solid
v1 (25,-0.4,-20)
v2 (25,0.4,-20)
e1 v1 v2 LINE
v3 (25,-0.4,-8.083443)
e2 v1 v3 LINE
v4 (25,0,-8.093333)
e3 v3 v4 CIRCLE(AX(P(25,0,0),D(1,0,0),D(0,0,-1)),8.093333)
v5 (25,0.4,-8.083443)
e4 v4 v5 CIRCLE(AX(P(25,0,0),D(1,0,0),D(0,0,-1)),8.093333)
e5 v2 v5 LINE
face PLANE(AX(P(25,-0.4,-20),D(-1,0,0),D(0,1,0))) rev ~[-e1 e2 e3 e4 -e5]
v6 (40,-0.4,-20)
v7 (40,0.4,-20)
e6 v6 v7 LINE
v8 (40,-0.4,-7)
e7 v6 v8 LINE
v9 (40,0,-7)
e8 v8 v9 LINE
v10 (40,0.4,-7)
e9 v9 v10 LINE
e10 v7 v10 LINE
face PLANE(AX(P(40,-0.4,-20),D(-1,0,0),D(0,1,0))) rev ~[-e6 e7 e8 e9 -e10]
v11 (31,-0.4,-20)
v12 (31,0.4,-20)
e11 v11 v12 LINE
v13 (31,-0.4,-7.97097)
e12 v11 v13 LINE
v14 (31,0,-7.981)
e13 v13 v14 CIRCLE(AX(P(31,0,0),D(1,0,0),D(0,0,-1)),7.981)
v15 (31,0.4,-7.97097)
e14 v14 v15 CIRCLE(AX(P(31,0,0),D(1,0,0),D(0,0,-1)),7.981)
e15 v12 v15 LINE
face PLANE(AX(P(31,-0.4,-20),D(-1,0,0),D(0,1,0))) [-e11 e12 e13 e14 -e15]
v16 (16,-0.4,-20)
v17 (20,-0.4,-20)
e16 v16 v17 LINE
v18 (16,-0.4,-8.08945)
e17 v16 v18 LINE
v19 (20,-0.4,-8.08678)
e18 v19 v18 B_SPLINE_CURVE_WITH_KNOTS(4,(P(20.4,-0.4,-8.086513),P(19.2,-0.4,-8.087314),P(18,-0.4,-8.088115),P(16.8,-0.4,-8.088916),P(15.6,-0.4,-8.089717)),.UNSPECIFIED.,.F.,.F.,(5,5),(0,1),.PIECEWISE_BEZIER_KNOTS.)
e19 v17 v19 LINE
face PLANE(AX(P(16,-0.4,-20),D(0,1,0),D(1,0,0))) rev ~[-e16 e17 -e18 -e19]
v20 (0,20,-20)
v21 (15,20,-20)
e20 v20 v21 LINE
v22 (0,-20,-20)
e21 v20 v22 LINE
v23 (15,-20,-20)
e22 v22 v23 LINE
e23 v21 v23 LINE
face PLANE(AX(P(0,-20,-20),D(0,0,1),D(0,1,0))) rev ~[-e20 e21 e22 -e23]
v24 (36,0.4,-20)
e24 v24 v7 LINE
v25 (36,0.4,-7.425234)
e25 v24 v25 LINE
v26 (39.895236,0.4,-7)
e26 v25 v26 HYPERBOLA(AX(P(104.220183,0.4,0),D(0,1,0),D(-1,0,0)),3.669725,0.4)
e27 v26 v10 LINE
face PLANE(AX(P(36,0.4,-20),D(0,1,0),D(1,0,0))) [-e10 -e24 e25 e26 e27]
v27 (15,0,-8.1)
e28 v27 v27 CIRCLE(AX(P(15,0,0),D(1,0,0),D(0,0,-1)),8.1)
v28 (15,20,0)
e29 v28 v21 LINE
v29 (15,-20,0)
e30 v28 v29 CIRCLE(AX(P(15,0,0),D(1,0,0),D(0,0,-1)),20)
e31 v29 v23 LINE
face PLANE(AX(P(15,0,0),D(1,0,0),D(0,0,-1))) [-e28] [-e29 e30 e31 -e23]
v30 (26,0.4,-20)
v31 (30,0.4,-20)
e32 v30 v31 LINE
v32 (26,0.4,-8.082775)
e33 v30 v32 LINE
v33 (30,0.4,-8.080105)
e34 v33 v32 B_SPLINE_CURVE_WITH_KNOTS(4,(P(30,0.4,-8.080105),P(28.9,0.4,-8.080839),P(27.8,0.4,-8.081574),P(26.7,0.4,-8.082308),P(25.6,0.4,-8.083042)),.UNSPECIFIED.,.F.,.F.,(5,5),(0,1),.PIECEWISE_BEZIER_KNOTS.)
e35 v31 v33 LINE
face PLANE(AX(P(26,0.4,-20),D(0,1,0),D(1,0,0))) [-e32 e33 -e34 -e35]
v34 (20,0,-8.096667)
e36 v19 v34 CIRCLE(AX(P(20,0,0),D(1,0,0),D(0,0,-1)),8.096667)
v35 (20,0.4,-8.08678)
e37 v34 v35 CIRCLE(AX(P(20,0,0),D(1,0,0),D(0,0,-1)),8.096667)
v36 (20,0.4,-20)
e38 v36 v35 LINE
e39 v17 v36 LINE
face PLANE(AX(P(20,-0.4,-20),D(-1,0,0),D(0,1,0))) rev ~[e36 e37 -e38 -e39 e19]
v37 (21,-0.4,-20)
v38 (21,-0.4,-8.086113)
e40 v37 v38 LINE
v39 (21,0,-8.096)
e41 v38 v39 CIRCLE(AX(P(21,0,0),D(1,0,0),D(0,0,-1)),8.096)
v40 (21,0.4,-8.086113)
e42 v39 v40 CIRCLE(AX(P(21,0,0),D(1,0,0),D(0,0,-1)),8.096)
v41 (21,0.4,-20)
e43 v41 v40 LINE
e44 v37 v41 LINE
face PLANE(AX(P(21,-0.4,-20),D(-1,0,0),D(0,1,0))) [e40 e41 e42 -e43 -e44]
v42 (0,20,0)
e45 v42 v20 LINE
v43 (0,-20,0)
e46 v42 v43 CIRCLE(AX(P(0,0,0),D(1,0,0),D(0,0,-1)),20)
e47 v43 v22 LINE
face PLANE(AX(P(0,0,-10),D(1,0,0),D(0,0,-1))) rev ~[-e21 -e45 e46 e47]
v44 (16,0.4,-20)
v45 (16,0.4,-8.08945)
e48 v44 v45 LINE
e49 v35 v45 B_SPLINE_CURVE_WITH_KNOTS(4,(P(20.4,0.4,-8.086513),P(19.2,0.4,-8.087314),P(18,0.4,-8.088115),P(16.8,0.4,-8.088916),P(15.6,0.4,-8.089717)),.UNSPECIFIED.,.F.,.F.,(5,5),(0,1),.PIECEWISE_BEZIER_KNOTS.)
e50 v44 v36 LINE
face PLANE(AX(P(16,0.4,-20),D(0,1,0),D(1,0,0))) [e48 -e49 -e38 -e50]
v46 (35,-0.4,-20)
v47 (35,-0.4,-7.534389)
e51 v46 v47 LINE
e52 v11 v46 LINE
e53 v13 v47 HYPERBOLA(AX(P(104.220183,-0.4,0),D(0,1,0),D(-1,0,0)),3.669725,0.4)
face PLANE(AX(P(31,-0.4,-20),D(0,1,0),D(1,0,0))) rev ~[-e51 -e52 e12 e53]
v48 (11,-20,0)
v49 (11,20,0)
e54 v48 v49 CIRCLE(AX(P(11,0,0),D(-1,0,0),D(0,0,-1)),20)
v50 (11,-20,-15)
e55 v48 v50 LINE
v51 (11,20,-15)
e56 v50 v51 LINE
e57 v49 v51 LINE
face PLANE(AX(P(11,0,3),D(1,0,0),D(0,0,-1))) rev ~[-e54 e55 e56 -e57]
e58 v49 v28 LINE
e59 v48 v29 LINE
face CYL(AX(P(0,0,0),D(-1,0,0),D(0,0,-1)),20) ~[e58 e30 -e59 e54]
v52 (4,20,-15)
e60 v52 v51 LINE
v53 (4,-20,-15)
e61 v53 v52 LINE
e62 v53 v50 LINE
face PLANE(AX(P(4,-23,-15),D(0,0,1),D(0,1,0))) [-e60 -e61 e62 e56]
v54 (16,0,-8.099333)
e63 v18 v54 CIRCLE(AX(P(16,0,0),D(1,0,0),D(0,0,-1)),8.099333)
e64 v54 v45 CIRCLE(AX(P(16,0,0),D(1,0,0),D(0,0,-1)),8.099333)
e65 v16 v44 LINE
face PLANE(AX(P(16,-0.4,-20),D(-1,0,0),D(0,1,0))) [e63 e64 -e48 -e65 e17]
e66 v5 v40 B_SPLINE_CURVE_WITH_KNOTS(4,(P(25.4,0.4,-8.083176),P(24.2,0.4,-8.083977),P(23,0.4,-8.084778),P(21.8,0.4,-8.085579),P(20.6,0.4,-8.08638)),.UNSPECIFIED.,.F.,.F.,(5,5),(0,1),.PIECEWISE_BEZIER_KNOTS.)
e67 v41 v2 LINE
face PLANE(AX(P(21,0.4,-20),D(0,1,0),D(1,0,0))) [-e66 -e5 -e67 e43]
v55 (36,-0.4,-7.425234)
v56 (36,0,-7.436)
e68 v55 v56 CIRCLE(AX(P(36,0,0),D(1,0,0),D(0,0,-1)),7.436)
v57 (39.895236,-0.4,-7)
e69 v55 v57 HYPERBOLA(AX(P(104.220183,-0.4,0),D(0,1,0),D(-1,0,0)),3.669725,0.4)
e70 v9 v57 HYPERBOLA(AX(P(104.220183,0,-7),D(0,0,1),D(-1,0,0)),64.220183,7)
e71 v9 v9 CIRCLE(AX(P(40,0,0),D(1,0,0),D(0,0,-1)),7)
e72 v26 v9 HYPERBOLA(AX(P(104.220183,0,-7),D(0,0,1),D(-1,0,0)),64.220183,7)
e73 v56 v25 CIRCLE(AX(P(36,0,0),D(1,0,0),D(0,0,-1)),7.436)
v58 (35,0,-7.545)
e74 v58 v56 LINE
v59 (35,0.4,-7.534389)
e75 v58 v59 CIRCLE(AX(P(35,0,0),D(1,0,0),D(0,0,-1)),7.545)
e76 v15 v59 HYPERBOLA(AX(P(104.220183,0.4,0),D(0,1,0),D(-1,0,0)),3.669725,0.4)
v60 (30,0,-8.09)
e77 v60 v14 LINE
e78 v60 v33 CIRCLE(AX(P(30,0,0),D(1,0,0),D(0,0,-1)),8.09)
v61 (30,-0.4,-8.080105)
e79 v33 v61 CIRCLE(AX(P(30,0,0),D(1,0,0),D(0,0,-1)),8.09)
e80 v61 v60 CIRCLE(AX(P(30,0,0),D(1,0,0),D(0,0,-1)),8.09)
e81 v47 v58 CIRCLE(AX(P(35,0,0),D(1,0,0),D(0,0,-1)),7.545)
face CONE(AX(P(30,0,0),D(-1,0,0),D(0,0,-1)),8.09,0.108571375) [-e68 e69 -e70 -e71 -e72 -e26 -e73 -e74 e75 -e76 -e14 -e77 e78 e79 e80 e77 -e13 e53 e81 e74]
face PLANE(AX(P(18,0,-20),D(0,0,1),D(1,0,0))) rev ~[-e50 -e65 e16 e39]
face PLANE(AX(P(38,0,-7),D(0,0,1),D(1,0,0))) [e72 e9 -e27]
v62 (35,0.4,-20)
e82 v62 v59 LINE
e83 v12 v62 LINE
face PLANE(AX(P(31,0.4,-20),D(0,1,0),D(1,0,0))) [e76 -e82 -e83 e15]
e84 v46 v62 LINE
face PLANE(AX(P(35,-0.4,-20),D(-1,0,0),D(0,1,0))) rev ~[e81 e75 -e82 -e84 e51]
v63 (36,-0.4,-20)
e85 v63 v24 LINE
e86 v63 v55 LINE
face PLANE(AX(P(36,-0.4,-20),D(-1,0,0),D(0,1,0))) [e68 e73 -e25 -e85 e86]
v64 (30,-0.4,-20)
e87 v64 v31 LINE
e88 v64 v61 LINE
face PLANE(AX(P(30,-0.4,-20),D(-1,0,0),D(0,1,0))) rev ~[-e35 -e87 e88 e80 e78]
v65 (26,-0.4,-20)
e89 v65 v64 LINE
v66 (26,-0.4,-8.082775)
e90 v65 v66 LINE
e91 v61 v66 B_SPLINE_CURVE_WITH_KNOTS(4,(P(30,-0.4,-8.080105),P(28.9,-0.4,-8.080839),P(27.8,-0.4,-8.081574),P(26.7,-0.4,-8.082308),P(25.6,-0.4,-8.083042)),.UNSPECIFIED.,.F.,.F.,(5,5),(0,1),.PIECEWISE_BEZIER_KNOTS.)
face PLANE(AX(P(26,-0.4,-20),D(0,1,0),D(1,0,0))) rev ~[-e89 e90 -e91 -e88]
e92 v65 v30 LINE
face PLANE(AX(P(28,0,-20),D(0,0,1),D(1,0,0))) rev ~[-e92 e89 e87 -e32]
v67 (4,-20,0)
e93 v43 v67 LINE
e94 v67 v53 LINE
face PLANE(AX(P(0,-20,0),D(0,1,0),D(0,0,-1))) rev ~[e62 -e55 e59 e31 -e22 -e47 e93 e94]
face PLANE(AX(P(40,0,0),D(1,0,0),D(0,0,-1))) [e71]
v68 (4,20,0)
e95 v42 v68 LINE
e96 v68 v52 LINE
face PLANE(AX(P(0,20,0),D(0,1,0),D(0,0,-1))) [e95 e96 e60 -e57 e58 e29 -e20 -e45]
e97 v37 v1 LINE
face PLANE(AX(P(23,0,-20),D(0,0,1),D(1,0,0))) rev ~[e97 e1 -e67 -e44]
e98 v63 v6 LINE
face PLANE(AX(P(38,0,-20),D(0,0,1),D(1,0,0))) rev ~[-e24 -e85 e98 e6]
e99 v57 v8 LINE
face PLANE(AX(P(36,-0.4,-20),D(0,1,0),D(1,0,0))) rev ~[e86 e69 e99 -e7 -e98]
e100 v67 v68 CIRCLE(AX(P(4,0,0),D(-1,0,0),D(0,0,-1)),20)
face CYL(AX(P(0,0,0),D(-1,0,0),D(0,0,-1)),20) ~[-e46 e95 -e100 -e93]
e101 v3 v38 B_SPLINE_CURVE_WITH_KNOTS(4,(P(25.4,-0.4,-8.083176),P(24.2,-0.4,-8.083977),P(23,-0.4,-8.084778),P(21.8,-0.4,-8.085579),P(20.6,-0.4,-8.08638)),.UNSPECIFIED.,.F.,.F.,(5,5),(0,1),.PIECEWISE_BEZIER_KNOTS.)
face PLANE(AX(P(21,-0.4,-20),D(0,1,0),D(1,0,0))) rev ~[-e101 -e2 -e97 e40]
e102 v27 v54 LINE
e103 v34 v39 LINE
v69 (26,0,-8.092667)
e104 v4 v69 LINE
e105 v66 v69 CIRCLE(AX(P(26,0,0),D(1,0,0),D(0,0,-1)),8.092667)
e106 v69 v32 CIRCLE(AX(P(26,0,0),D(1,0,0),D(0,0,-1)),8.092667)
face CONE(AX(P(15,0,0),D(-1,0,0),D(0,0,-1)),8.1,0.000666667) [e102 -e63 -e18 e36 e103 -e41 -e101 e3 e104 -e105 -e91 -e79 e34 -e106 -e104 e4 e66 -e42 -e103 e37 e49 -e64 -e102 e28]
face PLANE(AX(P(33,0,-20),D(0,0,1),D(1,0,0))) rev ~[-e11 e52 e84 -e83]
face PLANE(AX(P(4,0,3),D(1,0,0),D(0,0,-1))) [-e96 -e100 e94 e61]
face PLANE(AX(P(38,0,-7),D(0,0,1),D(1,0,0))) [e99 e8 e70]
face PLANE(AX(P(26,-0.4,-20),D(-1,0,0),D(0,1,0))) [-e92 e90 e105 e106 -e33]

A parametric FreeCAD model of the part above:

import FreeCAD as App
import Part
import Sketcher

V = App.Vector
Q = App.Units.Quantity

doc = App.newDocument("Part")
body = doc.addObject("PartDesign::Body", "Body")

# Sketch on XY plane
sketch1 = doc.addObject("Sketcher::SketchObject", "Sketch")
body.addObject(sketch1)
sketch1.AttachmentSupport = (doc.XY_Plane, [""])
sketch1.MapMode = "FlatFace"
sketch1.AttachmentOffset = App.Placement(V(0, 0, -20), App.Rotation())
sketch1.addGeometry([
    Part.LineSegment(V(36, 0.4, 0), V(36, -0.4, 0)),
    Part.LineSegment(V(36, -0.4, 0), V(40, -0.4, 0)),
    Part.LineSegment(V(40, -0.4, 0), V(40, 0.4, 0)),
    Part.LineSegment(V(40, 0.4, 0), V(36, 0.4, 0)),
], False)
sketch1.addConstraint([
    Sketcher.Constraint("Coincident", 0, 2, 1, 1),
    Sketcher.Constraint("Coincident", 1, 2, 2, 1),
    Sketcher.Constraint("Coincident", 2, 2, 3, 1),
    Sketcher.Constraint("Coincident", 3, 2, 0, 1),
    Sketcher.Constraint("Vertical", 0),
    Sketcher.Constraint("Horizontal", 1),
    Sketcher.Constraint("Vertical", 2),
    Sketcher.Constraint("Horizontal", 3),
    Sketcher.Constraint("DistanceX", 1, 1, 1, 2, Q("4 mm")),
    Sketcher.Constraint("DistanceY", 0, 2, 0, 1, Q("0.8 mm")),
    Sketcher.Constraint("DistanceX", -1, 1, 0, 2, Q("36 mm")),
    Sketcher.Constraint("DistanceY", 0, 2, -1, 1, Q("0.4 mm")),
])
pad1 = doc.addObject("PartDesign::Pad", "Pad")
body.addObject(pad1)
pad1.Profile = sketch1
pad1.Length = 13
body2 = doc.addObject("PartDesign::Body", "Body001")

# Sketch on XY plane
sketch2 = doc.addObject("Sketcher::SketchObject", "Sketch001")
body2.addObject(sketch2)
sketch2.AttachmentSupport = (doc.getObject("XY_Plane001"), [""])
sketch2.MapMode = "FlatFace"
sketch2.AttachmentOffset = App.Placement(V(0, 0, -20), App.Rotation())
sketch2.addGeometry([
    Part.LineSegment(V(31, 0.4, 0), V(31, -0.4, 0)),
    Part.LineSegment(V(31, -0.4, 0), V(35, -0.4, 0)),
    Part.LineSegment(V(35, -0.4, 0), V(35, 0.4, 0)),
    Part.LineSegment(V(35, 0.4, 0), V(31, 0.4, 0)),
], False)
sketch2.addConstraint([
    Sketcher.Constraint("Coincident", 0, 2, 1, 1),
    Sketcher.Constraint("Coincident", 1, 2, 2, 1),
    Sketcher.Constraint("Coincident", 2, 2, 3, 1),
    Sketcher.Constraint("Coincident", 3, 2, 0, 1),
    Sketcher.Constraint("Vertical", 0),
    Sketcher.Constraint("Horizontal", 1),
    Sketcher.Constraint("Vertical", 2),
    Sketcher.Constraint("Horizontal", 3),
    Sketcher.Constraint("DistanceX", 1, 1, 1, 2, Q("4 mm")),
    Sketcher.Constraint("DistanceY", 0, 2, 0, 1, Q("0.8 mm")),
    Sketcher.Constraint("DistanceX", -1, 1, 0, 2, Q("31 mm")),
    Sketcher.Constraint("DistanceY", 0, 2, -1, 1, Q("0.4 mm")),
])
pad2 = doc.addObject("PartDesign::Pad", "Pad001")
body2.addObject(pad2)
pad2.Profile = sketch2
pad2.Length = 13
body3 = doc.addObject("PartDesign::Body", "Body002")

# Sketch on XY plane
sketch3 = doc.addObject("Sketcher::SketchObject", "Sketch002")
body3.addObject(sketch3)
sketch3.AttachmentSupport = (doc.getObject("XY_Plane002"), [""])
sketch3.MapMode = "FlatFace"
sketch3.AttachmentOffset = App.Placement(V(0, 0, -20), App.Rotation())
sketch3.addGeometry([
    Part.LineSegment(V(26, 0.4, 0), V(26, -0.4, 0)),
    Part.LineSegment(V(26, -0.4, 0), V(30, -0.4, 0)),
    Part.LineSegment(V(30, -0.4, 0), V(30, 0.4, 0)),
    Part.LineSegment(V(30, 0.4, 0), V(26, 0.4, 0)),
], False)
sketch3.addConstraint([
    Sketcher.Constraint("Coincident", 0, 2, 1, 1),
    Sketcher.Constraint("Coincident", 1, 2, 2, 1),
    Sketcher.Constraint("Coincident", 2, 2, 3, 1),
    Sketcher.Constraint("Coincident", 3, 2, 0, 1),
    Sketcher.Constraint("Vertical", 0),
    Sketcher.Constraint("Horizontal", 1),
    Sketcher.Constraint("Vertical", 2),
    Sketcher.Constraint("Horizontal", 3),
    Sketcher.Constraint("DistanceX", 1, 1, 1, 2, Q("4 mm")),
    Sketcher.Constraint("DistanceY", 0, 2, 0, 1, Q("0.8 mm")),
    Sketcher.Constraint("DistanceX", -1, 1, 0, 2, Q("26 mm")),
    Sketcher.Constraint("DistanceY", 0, 2, -1, 1, Q("0.4 mm")),
])
pad3 = doc.addObject("PartDesign::Pad", "Pad002")
body3.addObject(pad3)
pad3.Profile = sketch3
pad3.Length = 13
body4 = doc.addObject("PartDesign::Body", "Body003")

# Sketch on XY plane
sketch4 = doc.addObject("Sketcher::SketchObject", "Sketch003")
body4.addObject(sketch4)
sketch4.AttachmentSupport = (doc.getObject("XY_Plane003"), [""])
sketch4.MapMode = "FlatFace"
sketch4.AttachmentOffset = App.Placement(V(0, 0, -20), App.Rotation())
sketch4.addGeometry([
    Part.LineSegment(V(21, 0.4, 0), V(21, -0.4, 0)),
    Part.LineSegment(V(21, -0.4, 0), V(25, -0.4, 0)),
    Part.LineSegment(V(25, -0.4, 0), V(25, 0.4, 0)),
    Part.LineSegment(V(25, 0.4, 0), V(21, 0.4, 0)),
], False)
sketch4.addConstraint([
    Sketcher.Constraint("Coincident", 0, 2, 1, 1),
    Sketcher.Constraint("Coincident", 1, 2, 2, 1),
    Sketcher.Constraint("Coincident", 2, 2, 3, 1),
    Sketcher.Constraint("Coincident", 3, 2, 0, 1),
    Sketcher.Constraint("Vertical", 0),
    Sketcher.Constraint("Horizontal", 1),
    Sketcher.Constraint("Vertical", 2),
    Sketcher.Constraint("Horizontal", 3),
    Sketcher.Constraint("DistanceX", 1, 1, 1, 2, Q("4 mm")),
    Sketcher.Constraint("DistanceY", 0, 2, 0, 1, Q("0.8 mm")),
    Sketcher.Constraint("DistanceX", -1, 1, 0, 2, Q("21 mm")),
    Sketcher.Constraint("DistanceY", 0, 2, -1, 1, Q("0.4 mm")),
])
pad4 = doc.addObject("PartDesign::Pad", "Pad003")
body4.addObject(pad4)
pad4.Profile = sketch4
pad4.Length = 13
body5 = doc.addObject("PartDesign::Body", "Body004")
body5.AllowCompound = True

# Sketch on XY plane
sketch5 = doc.addObject("Sketcher::SketchObject", "Sketch004")
body5.addObject(sketch5)
sketch5.AttachmentSupport = (doc.getObject("XY_Plane004"), [""])
sketch5.MapMode = "FlatFace"
sketch5.AttachmentOffset = App.Placement(V(0, 0, -20), App.Rotation())
sketch5.addGeometry([
    Part.LineSegment(V(16, 0.4, 0), V(16, -0.4, 0)),
    Part.LineSegment(V(16, -0.4, 0), V(20, -0.4, 0)),
    Part.LineSegment(V(20, -0.4, 0), V(20, 0.4, 0)),
    Part.LineSegment(V(20, 0.4, 0), V(16, 0.4, 0)),
], False)
sketch5.addConstraint([
    Sketcher.Constraint("Coincident", 0, 2, 1, 1),
    Sketcher.Constraint("Coincident", 1, 2, 2, 1),
    Sketcher.Constraint("Coincident", 2, 2, 3, 1),
    Sketcher.Constraint("Coincident", 3, 2, 0, 1),
    Sketcher.Constraint("Vertical", 0),
    Sketcher.Constraint("Horizontal", 1),
    Sketcher.Constraint("Vertical", 2),
    Sketcher.Constraint("Horizontal", 3),
    Sketcher.Constraint("DistanceX", 1, 1, 1, 2, Q("4 mm")),
    Sketcher.Constraint("DistanceY", 0, 2, 0, 1, Q("0.8 mm")),
    Sketcher.Constraint("DistanceX", -1, 1, 0, 2, Q("16 mm")),
    Sketcher.Constraint("DistanceY", 0, 2, -1, 1, Q("0.4 mm")),
])
pad5 = doc.addObject("PartDesign::Pad", "Pad004")
body5.addObject(pad5)
pad5.Profile = sketch5
pad5.Length = 13
doc.recompute()

boolean = doc.addObject("PartDesign::Boolean", "Boolean")
body5.addObject(boolean)
boolean.Type = "Fuse"
boolean.addObjects([body4])
doc.recompute()

boolean2 = doc.addObject("PartDesign::Boolean", "Boolean001")
body5.addObject(boolean2)
boolean2.Type = "Fuse"
boolean2.addObjects([body3])
doc.recompute()

boolean3 = doc.addObject("PartDesign::Boolean", "Boolean002")
body5.addObject(boolean3)
boolean3.Type = "Fuse"
boolean3.addObjects([body2])
doc.recompute()

boolean4 = doc.addObject("PartDesign::Boolean", "Boolean003")
body5.addObject(boolean4)
boolean4.Type = "Fuse"
boolean4.addObjects([body])
body6 = doc.addObject("PartDesign::Body", "Body005")

# Sketch on XZ plane
sketch6 = doc.addObject("Sketcher::SketchObject", "Sketch005")
body6.addObject(sketch6)
sketch6.AttachmentSupport = (doc.getObject("XZ_Plane005"), [""])
sketch6.MapMode = "FlatFace"
sketch6.addGeometry([
    Part.LineSegment(V(0, 30, 0), V(8, 30, 0)),
    Part.LineSegment(V(8, 30, 0), V(7, 40, 0)),
    Part.LineSegment(V(7, 40, 0), V(0, 40, 0)),
    Part.LineSegment(V(0, 40, 0), V(0, 30, 0)),
], False)
sketch6.addConstraint([
    Sketcher.Constraint("Coincident", 0, 2, 1, 1),
    Sketcher.Constraint("Coincident", 1, 2, 2, 1),
    Sketcher.Constraint("Coincident", 2, 2, 3, 1),
    Sketcher.Constraint("Coincident", 3, 2, 0, 1),
    Sketcher.Constraint("Horizontal", 0),
    Sketcher.Constraint("Horizontal", 2),
    Sketcher.Constraint("Vertical", 3),
    Sketcher.Constraint("PointOnObject", 2, 2, -2),
    Sketcher.Constraint("DistanceX", 2, 2, 2, 1, Q("7 mm")),
    Sketcher.Constraint("DistanceY", 3, 2, 3, 1, Q("10 mm")),
    Sketcher.Constraint("DistanceY", -1, 1, 0, 2, Q("30 mm")),
    Sketcher.Constraint("DistanceX", 0, 1, 0, 2, Q("8.09 mm")),
])
revolution = doc.addObject("PartDesign::Revolution", "Revolution")
body6.addObject(revolution)
revolution.Profile = sketch6
revolution.ReferenceAxis = (sketch6, ["V_Axis"])
revolution.Angle = 360
body7 = doc.addObject("PartDesign::Body", "Body006")

# Sketch on XZ plane
sketch7 = doc.addObject("Sketcher::SketchObject", "Sketch006")
body7.addObject(sketch7)
sketch7.AttachmentSupport = (doc.getObject("XZ_Plane006"), [""])
sketch7.MapMode = "FlatFace"
sketch7.addGeometry([
    Part.LineSegment(V(0, 15, 0), V(8, 15, 0)),
    Part.LineSegment(V(8, 15, 0), V(8, 30, 0)),
    Part.LineSegment(V(8, 30, 0), V(0, 30, 0)),
    Part.LineSegment(V(0, 30, 0), V(0, 15, 0)),
], False)
sketch7.addConstraint([
    Sketcher.Constraint("Coincident", 0, 2, 1, 1),
    Sketcher.Constraint("Coincident", 1, 2, 2, 1),
    Sketcher.Constraint("Coincident", 2, 2, 3, 1),
    Sketcher.Constraint("Coincident", 3, 2, 0, 1),
    Sketcher.Constraint("Horizontal", 0),
    Sketcher.Constraint("Horizontal", 2),
    Sketcher.Constraint("Vertical", 3),
    Sketcher.Constraint("PointOnObject", 2, 2, -2),
    Sketcher.Constraint("DistanceY", 3, 2, 3, 1, Q("15 mm")),
    Sketcher.Constraint("DistanceX", 0, 1, 0, 2, Q("8.1 mm")),
    Sketcher.Constraint("DistanceY", -1, 1, 0, 2, Q("15 mm")),
    Sketcher.Constraint("DistanceX", 2, 2, 2, 1, Q("8.09 mm")),
])
revolution2 = doc.addObject("PartDesign::Revolution", "Revolution001")
body7.addObject(revolution2)
revolution2.Profile = sketch7
revolution2.ReferenceAxis = (sketch7, ["V_Axis"])
revolution2.Angle = 360
doc.recompute()

boolean5 = doc.addObject("PartDesign::Boolean", "Boolean004")
body7.addObject(boolean5)
boolean5.Type = "Fuse"
boolean5.addObjects([body6])
body8 = doc.addObject("PartDesign::Body", "Body007")

# Sketch on XY plane
sketch8 = doc.addObject("Sketcher::SketchObject", "Sketch007")
body8.addObject(sketch8)
sketch8.AttachmentSupport = (doc.getObject("XY_Plane007"), [""])
sketch8.MapMode = "FlatFace"
sketch8.AttachmentOffset = App.Placement(V(0, 0, 4), App.Rotation())
sketch8.addGeometry([
    Part.LineSegment(V(-21, 23, 0), V(-21, -23, 0)),
    Part.LineSegment(V(-21, -23, 0), V(15, -23, 0)),
    Part.LineSegment(V(15, -23, 0), V(15, 23, 0)),
    Part.LineSegment(V(15, 23, 0), V(-21, 23, 0)),
], False)
sketch8.addConstraint([
    Sketcher.Constraint("Coincident", 0, 2, 1, 1),
    Sketcher.Constraint("Coincident", 1, 2, 2, 1),
    Sketcher.Constraint("Coincident", 2, 2, 3, 1),
    Sketcher.Constraint("Coincident", 3, 2, 0, 1),
    Sketcher.Constraint("Vertical", 0),
    Sketcher.Constraint("Horizontal", 1),
    Sketcher.Constraint("Vertical", 2),
    Sketcher.Constraint("Horizontal", 3),
    Sketcher.Constraint("DistanceX", 1, 1, 1, 2, Q("36 mm")),
    Sketcher.Constraint("DistanceY", 0, 2, 0, 1, Q("46 mm")),
    Sketcher.Constraint("DistanceX", 0, 2, -1, 1, Q("21 mm")),
    Sketcher.Constraint("DistanceY", 0, 2, -1, 1, Q("23 mm")),
])
pad6 = doc.addObject("PartDesign::Pad", "Pad005")
body8.addObject(pad6)
pad6.Profile = sketch8
pad6.Length = 7
body9 = doc.addObject("PartDesign::Body", "Body008")

# Sketch on XY plane
sketch9 = doc.addObject("Sketcher::SketchObject", "Sketch008")
body9.addObject(sketch9)
sketch9.AttachmentSupport = (doc.getObject("XY_Plane008"), [""])
sketch9.MapMode = "FlatFace"
sketch9.addGeometry(Part.Circle(V(0, 0, 0), V(0, 0, 1), 20), False)
sketch9.addConstraint([
    Sketcher.Constraint("Coincident", 0, 3, -1, 1),
    Sketcher.Constraint("Diameter", 0, Q("40 mm")),
])
pad7 = doc.addObject("PartDesign::Pad", "Pad006")
body9.addObject(pad7)
pad7.Profile = sketch9
pad7.Length = 15
body10 = doc.addObject("PartDesign::Body", "Body009")

# Sketch on XY plane
sketch10 = doc.addObject("Sketcher::SketchObject", "Sketch009")
body10.addObject(sketch10)
sketch10.AttachmentSupport = (doc.getObject("XY_Plane009"), [""])
sketch10.MapMode = "FlatFace"
sketch10.addGeometry([
    Part.LineSegment(V(0, 20, 0), V(0, -20, 0)),
    Part.LineSegment(V(0, -20, 0), V(20, -20, 0)),
    Part.LineSegment(V(20, -20, 0), V(20, 20, 0)),
    Part.LineSegment(V(20, 20, 0), V(0, 20, 0)),
], False)
sketch10.addConstraint([
    Sketcher.Constraint("Coincident", 0, 2, 1, 1),
    Sketcher.Constraint("Coincident", 1, 2, 2, 1),
    Sketcher.Constraint("Coincident", 2, 2, 3, 1),
    Sketcher.Constraint("Coincident", 3, 2, 0, 1),
    Sketcher.Constraint("Vertical", 0),
    Sketcher.Constraint("Horizontal", 1),
    Sketcher.Constraint("Vertical", 2),
    Sketcher.Constraint("Horizontal", 3),
    Sketcher.Constraint("Symmetric", 0, 2, 3, 2, -1, 1),
    Sketcher.Constraint("DistanceX", 1, 1, 1, 2, Q("20 mm")),
    Sketcher.Constraint("DistanceY", 0, 2, 0, 1, Q("40 mm")),
])
pad8 = doc.addObject("PartDesign::Pad", "Pad007")
body10.addObject(pad8)
pad8.Profile = sketch10
pad8.Length = 15
doc.recompute()

boolean6 = doc.addObject("PartDesign::Boolean", "Boolean005")
body10.addObject(boolean6)
boolean6.Type = "Fuse"
boolean6.addObjects([body9])
doc.recompute()

boolean7 = doc.addObject("PartDesign::Boolean", "Boolean006")
body10.addObject(boolean7)
boolean7.Type = "Cut"
boolean7.addObjects([body8])
doc.recompute()

boolean8 = doc.addObject("PartDesign::Boolean", "Boolean007")
body10.addObject(boolean8)
boolean8.Type = "Fuse"
boolean8.addObjects([body7])
body11 = doc.addObject("PartDesign::Body", "Body010")
doc.recompute()

body10.Placement = App.Placement(V(0, 0, 0), App.Rotation(V(0, 1, 0), 90))
boolean9 = doc.addObject("PartDesign::Boolean", "Boolean008")
body11.addObject(boolean9)
boolean9.Type = "Fuse"
boolean9.addObjects([body10])
doc.recompute()

boolean10 = doc.addObject("PartDesign::Boolean", "Boolean009")
body11.addObject(boolean10)
boolean10.Type = "Fuse"
boolean10.addObjects([body5])

doc.recompute()
